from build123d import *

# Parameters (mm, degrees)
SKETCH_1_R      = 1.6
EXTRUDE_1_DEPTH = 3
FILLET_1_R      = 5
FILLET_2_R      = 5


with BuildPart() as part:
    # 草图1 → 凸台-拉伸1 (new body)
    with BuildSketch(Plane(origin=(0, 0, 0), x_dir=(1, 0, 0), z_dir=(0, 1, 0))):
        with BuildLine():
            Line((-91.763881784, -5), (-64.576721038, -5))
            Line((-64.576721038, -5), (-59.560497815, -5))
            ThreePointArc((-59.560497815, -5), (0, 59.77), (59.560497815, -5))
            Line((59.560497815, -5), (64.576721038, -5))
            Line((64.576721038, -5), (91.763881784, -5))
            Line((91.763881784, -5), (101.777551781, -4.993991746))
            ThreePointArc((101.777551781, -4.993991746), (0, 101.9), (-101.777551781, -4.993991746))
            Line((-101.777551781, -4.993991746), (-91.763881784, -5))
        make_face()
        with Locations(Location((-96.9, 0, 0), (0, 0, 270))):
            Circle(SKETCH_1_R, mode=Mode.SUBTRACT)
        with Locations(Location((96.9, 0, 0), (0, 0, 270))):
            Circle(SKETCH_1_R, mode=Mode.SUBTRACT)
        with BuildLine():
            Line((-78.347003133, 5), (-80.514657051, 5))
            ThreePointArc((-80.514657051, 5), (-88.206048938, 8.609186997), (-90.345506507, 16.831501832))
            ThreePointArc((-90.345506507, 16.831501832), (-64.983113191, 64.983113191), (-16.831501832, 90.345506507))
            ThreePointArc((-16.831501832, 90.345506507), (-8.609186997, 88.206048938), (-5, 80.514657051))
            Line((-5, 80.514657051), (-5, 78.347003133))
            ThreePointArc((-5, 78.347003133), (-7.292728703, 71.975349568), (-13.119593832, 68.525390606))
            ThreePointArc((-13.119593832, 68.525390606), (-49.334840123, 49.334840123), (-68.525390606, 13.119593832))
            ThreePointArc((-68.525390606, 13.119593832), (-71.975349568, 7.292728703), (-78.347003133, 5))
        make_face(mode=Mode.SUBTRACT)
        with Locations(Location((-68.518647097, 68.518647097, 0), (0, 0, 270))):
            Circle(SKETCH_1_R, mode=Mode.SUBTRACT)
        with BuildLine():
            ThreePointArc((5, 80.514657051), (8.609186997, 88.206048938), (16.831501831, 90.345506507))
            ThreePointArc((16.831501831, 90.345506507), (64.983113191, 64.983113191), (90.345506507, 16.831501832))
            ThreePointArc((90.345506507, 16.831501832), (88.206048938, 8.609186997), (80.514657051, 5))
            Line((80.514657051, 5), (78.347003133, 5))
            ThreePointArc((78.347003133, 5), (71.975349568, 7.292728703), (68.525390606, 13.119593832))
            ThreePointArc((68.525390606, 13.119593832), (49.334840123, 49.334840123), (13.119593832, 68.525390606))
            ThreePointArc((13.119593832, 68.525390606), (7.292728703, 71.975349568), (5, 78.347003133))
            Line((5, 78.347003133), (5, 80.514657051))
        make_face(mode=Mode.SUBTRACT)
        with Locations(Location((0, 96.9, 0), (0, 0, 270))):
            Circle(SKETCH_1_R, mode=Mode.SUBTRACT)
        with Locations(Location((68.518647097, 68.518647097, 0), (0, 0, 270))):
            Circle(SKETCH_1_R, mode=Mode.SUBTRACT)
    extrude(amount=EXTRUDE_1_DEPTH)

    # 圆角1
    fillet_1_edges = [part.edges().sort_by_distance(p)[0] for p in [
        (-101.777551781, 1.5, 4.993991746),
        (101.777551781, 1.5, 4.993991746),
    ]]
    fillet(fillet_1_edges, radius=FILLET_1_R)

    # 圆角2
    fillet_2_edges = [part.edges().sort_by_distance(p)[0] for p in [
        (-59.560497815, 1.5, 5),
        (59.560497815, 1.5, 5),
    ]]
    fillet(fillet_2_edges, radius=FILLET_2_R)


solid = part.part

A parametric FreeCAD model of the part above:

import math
import FreeCAD as App
import Part
import Sketcher
from FreeCAD import Vector
Q = App.Units.Quantity


def edges_at(feature, points):
    """Names of the edges that pass closest to the given points."""
    edges = feature.Shape.Edges
    near = lambda p: min(range(len(edges)), key=lambda i: edges[i].distToShape(Part.Vertex(*p))[0])
    return sorted({f"Edge{near(p) + 1}" for p in points})

doc = App.newDocument("Part")
params = doc.addObject("Spreadsheet::Sheet", "Params")
for row, (alias, value) in enumerate([
    ("sketch1_radius", "10 mm"),
    ("sketch1_diameter", "3.2 mm"),
    ("sketch1_radius2", "101.9 mm"),
    ("sketch1_radius3", "91.9 mm"),
    ("sketch1_radius4", "59.77 mm"),
    ("pad1_length", "3 mm"),
    ("fillet_radius", "5 mm"),
    ("fillet2_radius", "5 mm"),
], start=1):
    params.set(f"A{row}", alias)
    params.set(f"B{row}", "=" + value)
    params.setAlias(f"B{row}", alias)

body = doc.addObject("PartDesign::Body", "Body")

# Sketch on XZ plane
sketch1 = body.newObject("Sketcher::SketchObject", "Sketch")
sketch1.AttachmentSupport = (doc.getObject("XZ_Plane"), [""])
sketch1.MapMode = "FlatFace"
sketch1.addGeometry([
    Part.LineSegment(Vector(-91.8, 5, 0), Vector(-59.6, 5, 0)),  # 0
    Part.ArcOfCircle(Part.Circle(Vector(0, 0, 0), Vector(0, 0, 1), 59.8), math.radians(175), math.radians(365)),  # 1
    Part.LineSegment(Vector(59.6, 5, 0), Vector(91.8, 5, 0)),  # 2
    Part.LineSegment(Vector(91.8, 5, 0), Vector(101.8, 5, 0)),  # 3
    Part.ArcOfCircle(Part.Circle(Vector(0, 0, 0), Vector(0, 0, 1), 101.9), math.radians(177), math.radians(363)),  # 4
    Part.LineSegment(Vector(-101.8, 5, 0), Vector(-91.8, 5, 0)),  # 5
    Part.Circle(Vector(-96.9, 0, 0), Vector(0, 0, 1), 1.6),  # 6
    Part.ArcOfCircle(Part.Circle(Vector(-78.3, -15, 0), Vector(0, 0, 1), 10), math.radians(11), math.radians(90)),  # 7
    Part.LineSegment(Vector(-78.3, -5, 0), Vector(-80.5, -5, 0)),  # 8
    Part.ArcOfCircle(Part.Circle(Vector(-80.5, -15, 0), Vector(0, 0, 1), 10), math.radians(90), math.radians(191)),  # 9
    Part.ArcOfCircle(Part.Circle(Vector(0, 0, 0), Vector(0, 0, 1), 91.9), math.radians(-169), math.radians(-101)),  # 10
    Part.ArcOfCircle(Part.Circle(Vector(-15, -80.5, 0), Vector(0, 0, 1), 10), math.radians(-101), math.radians(0)),  # 11
    Part.LineSegment(Vector(-5, -80.5, 0), Vector(-5, -78.3, 0)),  # 12
    Part.ArcOfCircle(Part.Circle(Vector(-15, -78.3, 0), Vector(0, 0, 1), 10), math.radians(0), math.radians(79)),  # 13
    Part.ArcOfCircle(Part.Circle(Vector(0, 0, 0), Vector(0, 0, 1), 69.8), math.radians(-169), math.radians(-101)),  # 14
    Part.Circle(Vector(96.9, 0, 0), Vector(0, 0, 1), 1.6),  # 15
    Part.LineSegment(Vector(5, -78.3, 0), Vector(5, -80.5, 0)),  # 16
    Part.ArcOfCircle(Part.Circle(Vector(15, -80.5, 0), Vector(0, 0, 1), 10), math.radians(180), math.radians(281)),  # 17
    Part.ArcOfCircle(Part.Circle(Vector(0, 0, 0), Vector(0, 0, 1), 91.9), math.radians(-79), math.radians(-11)),  # 18
    Part.ArcOfCircle(Part.Circle(Vector(80.5, -15, 0), Vector(0, 0, 1), 10), math.radians(-11), math.radians(90)),  # 19
    Part.LineSegment(Vector(80.5, -5, 0), Vector(78.3, -5, 0)),  # 20
    Part.ArcOfCircle(Part.Circle(Vector(78.3, -15, 0), Vector(0, 0, 1), 10), math.radians(90), math.radians(169)),  # 21
    Part.ArcOfCircle(Part.Circle(Vector(0, 0, 0), Vector(0, 0, 1), 69.8), math.radians(-79), math.radians(-11)),  # 22
    Part.ArcOfCircle(Part.Circle(Vector(15, -78.3, 0), Vector(0, 0, 1), 10), math.radians(101), math.radians(180)),  # 23
    Part.Circle(Vector(-68.5, -68.5, 0), Vector(0, 0, 1), 1.6),  # 24
    Part.Circle(Vector(0, -96.9, 0), Vector(0, 0, 1), 1.6),  # 25
    Part.Circle(Vector(68.5, -68.5, 0), Vector(0, 0, 1), 1.6),  # 26
], False)
sketch1.addConstraint([
    Sketcher.Constraint("Coincident", 0, 2, 1, 1),
    Sketcher.Constraint("Coincident", 1, 2, 2, 1),
    Sketcher.Constraint("Coincident", 2, 2, 3, 1),
    Sketcher.Constraint("Coincident", 3, 2, 4, 2),
    Sketcher.Constraint("Coincident", 4, 1, 5, 1),
    Sketcher.Constraint("Coincident", 5, 2, 0, 1),
    Sketcher.Constraint("Tangent", 7, 2, 8, 1),
    Sketcher.Constraint("Tangent", 8, 2, 9, 1),
    Sketcher.Constraint("Tangent", 9, 2, 10, 1),
    Sketcher.Constraint("Tangent", 10, 2, 11, 1),
    Sketcher.Constraint("Tangent", 11, 2, 12, 1),
    Sketcher.Constraint("Tangent", 12, 2, 13, 1),
    Sketcher.Constraint("Tangent", 13, 2, 14, 2),
    Sketcher.Constraint("Tangent", 14, 1, 7, 1),
    Sketcher.Constraint("Tangent", 16, 2, 17, 1),
    Sketcher.Constraint("Tangent", 17, 2, 18, 1),
    Sketcher.Constraint("Tangent", 18, 2, 19, 1),
    Sketcher.Constraint("Tangent", 19, 2, 20, 1),
    Sketcher.Constraint("Tangent", 20, 2, 21, 1),
    Sketcher.Constraint("Tangent", 21, 2, 22, 2),
    Sketcher.Constraint("Tangent", 22, 1, 23, 1),
    Sketcher.Constraint("Tangent", 23, 2, 16, 1),
    Sketcher.Constraint("Horizontal", 0),
    Sketcher.Constraint("Horizontal", 2),
    Sketcher.Constraint("Horizontal", 8),
    Sketcher.Constraint("Vertical", 12),
    Sketcher.Constraint("Vertical", 16),
    Sketcher.Constraint("Horizontal", 20),
    Sketcher.Constraint("Coincident", 1, 3, -1, 1),
    Sketcher.Constraint("Coincident", 4, 3, -1, 1),
    Sketcher.Constraint("Coincident", 10, 3, -1, 1),
    Sketcher.Constraint("Coincident", 14, 3, -1, 1),
    Sketcher.Constraint("Coincident", 18, 3, -1, 1),
    Sketcher.Constraint("Coincident", 22, 3, -1, 1),
    Sketcher.Constraint("Equal", 7, 9),
    Sketcher.Constraint("Equal", 9, 11),
    Sketcher.Constraint("Equal", 11, 13),
    Sketcher.Constraint("Equal", 6, 15),
    Sketcher.Constraint("Equal", 13, 17),
    Sketcher.Constraint("Equal", 10, 18),
    Sketcher.Constraint("Equal", 17, 19),
    Sketcher.Constraint("Equal", 19, 21),
    Sketcher.Constraint("Equal", 14, 22),
    Sketcher.Constraint("Equal", 21, 23),
    Sketcher.Constraint("Equal", 15, 24),
    Sketcher.Constraint("Equal", 24, 25),
    Sketcher.Constraint("Equal", 25, 26),
    Sketcher.Constraint("Symmetric", 6, 3, 15, 3, -1, 1),
    Sketcher.Constraint("Symmetric", 24, 3, 26, 3, -2),
    Sketcher.Constraint("Symmetric", 2, 2, 5, 2, -2),
    Sketcher.Constraint("PointOnObject", 6, 3, -1),
    Sketcher.Constraint("PointOnObject", 25, 3, -2),
    Sketcher.Constraint("Horizontal", 11, 3, 17, 3),
    Sketcher.Constraint("Horizontal", 9, 3, 19, 3),
    Sketcher.Constraint("Horizontal", 3, 2, 4, 1),
    Sketcher.Constraint("Radius", 7, Q("10 mm")),
    Sketcher.Constraint("Diameter", 6, Q("3.2 mm")),
    Sketcher.Constraint("Radius", 4, Q("101.9 mm")),
    Sketcher.Constraint("Radius", 10, Q("91.9 mm")),
    Sketcher.Constraint("Radius", 1, Q("59.77 mm")),
    Sketcher.Constraint("Radius", 14, Q("69.77 mm")),
    Sketcher.Constraint("DistanceY", 7, 3, -1, 1, Q("15 mm")),
    Sketcher.Constraint("DistanceX", 11, 3, -1, 1, Q("15 mm")),
    Sketcher.Constraint("DistanceY", -1, 1, 0, 2, Q("5 mm")),
    Sketcher.Constraint("DistanceX", 6, 3, -1, 1, Q("96.9 mm")),
    Sketcher.Constraint("DistanceY", 25, 3, -1, 1, Q("96.9 mm")),
    Sketcher.Constraint("Distance", 3, Q("10.013672 mm")),
    Sketcher.Constraint("DistanceX", 0, 1, 0, 2, Q("32.203384 mm")),
    Sketcher.Constraint("DistanceX", 9, 3, 24, 3, Q("11.99601 mm")),
    Sketcher.Constraint("DistanceY", 11, 3, 24, 3, Q("11.99601 mm")),
])
sketch1.setExpression("Constraints[55]", "Params.sketch1_radius")
sketch1.setExpression("Constraints[56]", "Params.sketch1_diameter")
sketch1.setExpression("Constraints[57]", "Params.sketch1_radius2")
sketch1.setExpression("Constraints[58]", "Params.sketch1_radius3")
sketch1.setExpression("Constraints[59]", "Params.sketch1_radius4")
pad1 = body.newObject("PartDesign::Pad", "Pad")
pad1.Profile = sketch1
pad1.setExpression("Length", "Params.pad1_length")
pad1.Reversed = True
doc.recompute()

fillet = body.newObject("PartDesign::Fillet", "Fillet")
fillet.Base = (pad1, edges_at(pad1, [(-101.778, 1.5, 4.994), (101.778, 1.5, 4.994)]))
fillet.setExpression("Radius", "Params.fillet_radius")
doc.recompute()

fillet2 = body.newObject("PartDesign::Fillet", "Fillet001")
fillet2.Base = (fillet, edges_at(fillet, [(-59.56, 1.5, 5), (59.56, 1.5, 5)]))
fillet2.setExpression("Radius", "Params.fillet2_radius")

doc.recompute()
